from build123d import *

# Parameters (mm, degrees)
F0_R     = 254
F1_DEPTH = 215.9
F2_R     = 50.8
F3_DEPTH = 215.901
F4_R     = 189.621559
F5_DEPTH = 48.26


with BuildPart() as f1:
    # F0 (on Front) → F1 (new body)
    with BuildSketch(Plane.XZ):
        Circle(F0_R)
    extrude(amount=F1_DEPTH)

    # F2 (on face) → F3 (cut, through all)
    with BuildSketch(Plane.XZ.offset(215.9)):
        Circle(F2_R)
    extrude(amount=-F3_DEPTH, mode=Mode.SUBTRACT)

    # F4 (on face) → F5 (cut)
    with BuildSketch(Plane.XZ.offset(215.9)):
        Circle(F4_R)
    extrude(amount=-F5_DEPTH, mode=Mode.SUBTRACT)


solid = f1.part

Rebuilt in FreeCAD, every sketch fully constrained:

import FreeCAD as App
import Part
import Sketcher
Q = App.Units.Quantity

doc = App.newDocument("Part")
body = doc.addObject("PartDesign::Body", "Body")

sketch1 = body.newObject("Sketcher::SketchObject", "Sketch")
sketch1.AttachmentSupport = (doc.getObject("XZ_Plane"), [""])
sketch1.MapMode = "FlatFace"
sketch1.addGeometry(Part.Circle(App.Vector(0, 0, 0), App.Vector(0, 0, 1), 254), False)
sketch1.addConstraint(Sketcher.Constraint("Coincident", 0, 3, -1, 1))
sketch1.addConstraint(Sketcher.Constraint("Diameter", 0, Q("20 in")))
pad1 = body.newObject("PartDesign::Pad", "Pad")
pad1.Profile = sketch1
pad1.Length = Q("8.5 in")

sketch2 = body.newObject("Sketcher::SketchObject", "Sketch001")
sketch2.AttachmentSupport = (doc.getObject("XZ_Plane"), [""])
sketch2.MapMode = "FlatFace"
sketch2.AttachmentOffset = App.Placement(App.Vector(0, 0, 8.5 * 25.4), App.Rotation())
sketch2.addGeometry(Part.Circle(App.Vector(0, 0, 0), App.Vector(0, 0, 1), 51), False)
sketch2.addConstraint(Sketcher.Constraint("Coincident", 0, 3, -1, 1))
sketch2.addConstraint(Sketcher.Constraint("Diameter", 0, Q("4 in")))
pocket1 = body.newObject("PartDesign::Pocket", "Pocket")
pocket1.Profile = sketch2
pocket1.Type = "ThroughAll"

sketch3 = body.newObject("Sketcher::SketchObject", "Sketch002")
sketch3.AttachmentSupport = (doc.getObject("XZ_Plane"), [""])
sketch3.MapMode = "FlatFace"
sketch3.AttachmentOffset = App.Placement(App.Vector(0, 0, 8.5 * 25.4), App.Rotation())
sketch3.addGeometry(Part.Circle(App.Vector(0, 0, 0), App.Vector(0, 0, 1), 190), False)
sketch3.addConstraint(Sketcher.Constraint("Coincident", 0, 3, -1, 1))
sketch3.addConstraint(Sketcher.Constraint("Diameter", 0, 379.243118))
pocket2 = body.newObject("PartDesign::Pocket", "Pocket001")
pocket2.Profile = sketch3
pocket2.Length = Q("1.9 in")

doc.recompute()
